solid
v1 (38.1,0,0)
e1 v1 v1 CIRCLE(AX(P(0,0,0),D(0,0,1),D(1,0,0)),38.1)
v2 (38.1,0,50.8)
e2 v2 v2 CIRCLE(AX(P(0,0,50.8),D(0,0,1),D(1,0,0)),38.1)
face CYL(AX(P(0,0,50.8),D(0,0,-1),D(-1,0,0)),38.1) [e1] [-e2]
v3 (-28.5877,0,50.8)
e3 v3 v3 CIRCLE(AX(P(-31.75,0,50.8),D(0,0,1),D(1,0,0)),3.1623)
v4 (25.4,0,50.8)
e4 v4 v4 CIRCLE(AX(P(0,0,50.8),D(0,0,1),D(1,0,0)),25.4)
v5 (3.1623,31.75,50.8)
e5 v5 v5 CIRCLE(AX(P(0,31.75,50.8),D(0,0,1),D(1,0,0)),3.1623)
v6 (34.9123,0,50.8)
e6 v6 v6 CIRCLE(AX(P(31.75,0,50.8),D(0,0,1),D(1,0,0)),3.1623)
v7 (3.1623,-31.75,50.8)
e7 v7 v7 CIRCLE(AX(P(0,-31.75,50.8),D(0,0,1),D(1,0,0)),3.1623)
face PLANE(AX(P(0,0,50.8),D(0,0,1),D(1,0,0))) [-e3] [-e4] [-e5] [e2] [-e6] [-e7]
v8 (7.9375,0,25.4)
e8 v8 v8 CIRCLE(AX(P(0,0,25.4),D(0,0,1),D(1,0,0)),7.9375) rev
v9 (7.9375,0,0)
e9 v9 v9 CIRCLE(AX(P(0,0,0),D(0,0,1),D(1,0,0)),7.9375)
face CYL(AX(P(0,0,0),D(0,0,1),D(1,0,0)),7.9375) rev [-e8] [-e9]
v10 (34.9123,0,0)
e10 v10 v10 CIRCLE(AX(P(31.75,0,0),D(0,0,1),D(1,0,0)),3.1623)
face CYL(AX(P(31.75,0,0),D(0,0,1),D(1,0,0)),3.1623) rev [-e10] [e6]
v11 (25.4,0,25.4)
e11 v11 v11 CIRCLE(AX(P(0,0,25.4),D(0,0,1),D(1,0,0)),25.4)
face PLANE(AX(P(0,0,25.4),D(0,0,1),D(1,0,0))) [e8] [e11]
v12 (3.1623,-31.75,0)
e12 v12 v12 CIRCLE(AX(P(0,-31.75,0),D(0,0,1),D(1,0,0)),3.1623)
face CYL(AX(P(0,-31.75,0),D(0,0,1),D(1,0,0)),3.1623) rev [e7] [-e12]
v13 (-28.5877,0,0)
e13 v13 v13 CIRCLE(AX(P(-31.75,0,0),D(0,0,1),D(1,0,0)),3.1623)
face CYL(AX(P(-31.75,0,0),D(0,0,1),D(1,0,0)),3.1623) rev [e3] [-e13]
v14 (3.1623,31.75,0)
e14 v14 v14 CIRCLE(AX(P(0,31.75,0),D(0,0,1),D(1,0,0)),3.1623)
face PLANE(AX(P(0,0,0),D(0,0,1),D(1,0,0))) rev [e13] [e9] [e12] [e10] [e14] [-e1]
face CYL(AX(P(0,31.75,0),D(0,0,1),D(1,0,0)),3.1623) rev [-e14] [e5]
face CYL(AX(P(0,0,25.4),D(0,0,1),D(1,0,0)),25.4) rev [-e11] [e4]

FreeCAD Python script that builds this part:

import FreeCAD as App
import Part
import Sketcher
from FreeCAD import Vector
Q = App.Units.Quantity

doc = App.newDocument("Part")
body = doc.addObject("PartDesign::Body", "Body")

# Sketch on XY plane
sketch1 = doc.addObject("Sketcher::SketchObject", "Sketch")
body.addObject(sketch1)
sketch1.AttachmentSupport = (doc.XY_Plane, [""])
sketch1.MapMode = "FlatFace"
sketch1.addGeometry(Part.Circle(Vector(0, 0, 0), Vector(0, 0, 1), 38), False)
sketch1.addConstraint(Sketcher.Constraint("Coincident", 0, 3, -1, 1))
sketch1.addConstraint(Sketcher.Constraint("Diameter", 0, Q("3 in")))
pad1 = doc.addObject("PartDesign::Pad", "Pad")
body.addObject(pad1)
pad1.Profile = sketch1
pad1.Length = Q("2 in")

# Sketch on XY plane
sketch2 = doc.addObject("Sketcher::SketchObject", "Sketch001")
body.addObject(sketch2)
sketch2.AttachmentSupport = (doc.XY_Plane, [""])
sketch2.MapMode = "FlatFace"
sketch2.AttachmentOffset = App.Placement(Vector(0, 0, 2 * 25.4), App.Rotation())
sketch2.addGeometry(Part.Circle(Vector(0, 0, 0), Vector(0, 0, 1), 7.9), False)
sketch2.addGeometry(Part.Circle(Vector(0, 31.8, 0), Vector(0, 0, 1), 3.2), False)
sketch2.addGeometry(Part.Circle(Vector(0, -31.8, 0), Vector(0, 0, 1), 3.2), False)
sketch2.addGeometry(Part.Circle(Vector(31.8, 0, 0), Vector(0, 0, 1), 3.2), False)
sketch2.addGeometry(Part.Circle(Vector(-31.8, 0, 0), Vector(0, 0, 1), 3.2), False)
sketch2.addConstraint(Sketcher.Constraint("Coincident", 0, 3, -1, 1))
sketch2.addConstraint(Sketcher.Constraint("Equal", 1, 2))
sketch2.addConstraint(Sketcher.Constraint("Equal", 2, 3))
sketch2.addConstraint(Sketcher.Constraint("Equal", 3, 4))
sketch2.addConstraint(Sketcher.Constraint("Symmetric", 1, 3, 2, 3, -1, 1))
sketch2.addConstraint(Sketcher.Constraint("Symmetric", 3, 3, 4, 3, -1, 1))
sketch2.addConstraint(Sketcher.Constraint("PointOnObject", 1, 3, -2))
sketch2.addConstraint(Sketcher.Constraint("PointOnObject", 3, 3, -1))
sketch2.addConstraint(Sketcher.Constraint("Diameter", 0, Q("0.625 in")))
sketch2.addConstraint(Sketcher.Constraint("Diameter", 1, Q("0.249 in")))
sketch2.addConstraint(Sketcher.Constraint("DistanceY", 2, 3, 1, 3, Q("2.5 in")))
sketch2.addConstraint(Sketcher.Constraint("DistanceX", 4, 3, 3, 3, Q("2.5 in")))
pocket1 = doc.addObject("PartDesign::Pocket", "Pocket")
body.addObject(pocket1)
pocket1.Profile = sketch2
pocket1.Length = Q("2 in")

# Sketch on XY plane
sketch3 = doc.addObject("Sketcher::SketchObject", "Sketch002")
body.addObject(sketch3)
sketch3.AttachmentSupport = (doc.XY_Plane, [""])
sketch3.MapMode = "FlatFace"
sketch3.AttachmentOffset = App.Placement(Vector(0, 0, 2 * 25.4), App.Rotation())
sketch3.addGeometry(Part.Circle(Vector(0, 0, 0), Vector(0, 0, 1), 25), False)
sketch3.addConstraint(Sketcher.Constraint("Coincident", 0, 3, -1, 1))
sketch3.addConstraint(Sketcher.Constraint("Diameter", 0, Q("2 in")))
pocket2 = doc.addObject("PartDesign::Pocket", "Pocket001")
body.addObject(pocket2)
pocket2.Profile = sketch3
pocket2.Length = Q("1 in")

doc.recompute()
